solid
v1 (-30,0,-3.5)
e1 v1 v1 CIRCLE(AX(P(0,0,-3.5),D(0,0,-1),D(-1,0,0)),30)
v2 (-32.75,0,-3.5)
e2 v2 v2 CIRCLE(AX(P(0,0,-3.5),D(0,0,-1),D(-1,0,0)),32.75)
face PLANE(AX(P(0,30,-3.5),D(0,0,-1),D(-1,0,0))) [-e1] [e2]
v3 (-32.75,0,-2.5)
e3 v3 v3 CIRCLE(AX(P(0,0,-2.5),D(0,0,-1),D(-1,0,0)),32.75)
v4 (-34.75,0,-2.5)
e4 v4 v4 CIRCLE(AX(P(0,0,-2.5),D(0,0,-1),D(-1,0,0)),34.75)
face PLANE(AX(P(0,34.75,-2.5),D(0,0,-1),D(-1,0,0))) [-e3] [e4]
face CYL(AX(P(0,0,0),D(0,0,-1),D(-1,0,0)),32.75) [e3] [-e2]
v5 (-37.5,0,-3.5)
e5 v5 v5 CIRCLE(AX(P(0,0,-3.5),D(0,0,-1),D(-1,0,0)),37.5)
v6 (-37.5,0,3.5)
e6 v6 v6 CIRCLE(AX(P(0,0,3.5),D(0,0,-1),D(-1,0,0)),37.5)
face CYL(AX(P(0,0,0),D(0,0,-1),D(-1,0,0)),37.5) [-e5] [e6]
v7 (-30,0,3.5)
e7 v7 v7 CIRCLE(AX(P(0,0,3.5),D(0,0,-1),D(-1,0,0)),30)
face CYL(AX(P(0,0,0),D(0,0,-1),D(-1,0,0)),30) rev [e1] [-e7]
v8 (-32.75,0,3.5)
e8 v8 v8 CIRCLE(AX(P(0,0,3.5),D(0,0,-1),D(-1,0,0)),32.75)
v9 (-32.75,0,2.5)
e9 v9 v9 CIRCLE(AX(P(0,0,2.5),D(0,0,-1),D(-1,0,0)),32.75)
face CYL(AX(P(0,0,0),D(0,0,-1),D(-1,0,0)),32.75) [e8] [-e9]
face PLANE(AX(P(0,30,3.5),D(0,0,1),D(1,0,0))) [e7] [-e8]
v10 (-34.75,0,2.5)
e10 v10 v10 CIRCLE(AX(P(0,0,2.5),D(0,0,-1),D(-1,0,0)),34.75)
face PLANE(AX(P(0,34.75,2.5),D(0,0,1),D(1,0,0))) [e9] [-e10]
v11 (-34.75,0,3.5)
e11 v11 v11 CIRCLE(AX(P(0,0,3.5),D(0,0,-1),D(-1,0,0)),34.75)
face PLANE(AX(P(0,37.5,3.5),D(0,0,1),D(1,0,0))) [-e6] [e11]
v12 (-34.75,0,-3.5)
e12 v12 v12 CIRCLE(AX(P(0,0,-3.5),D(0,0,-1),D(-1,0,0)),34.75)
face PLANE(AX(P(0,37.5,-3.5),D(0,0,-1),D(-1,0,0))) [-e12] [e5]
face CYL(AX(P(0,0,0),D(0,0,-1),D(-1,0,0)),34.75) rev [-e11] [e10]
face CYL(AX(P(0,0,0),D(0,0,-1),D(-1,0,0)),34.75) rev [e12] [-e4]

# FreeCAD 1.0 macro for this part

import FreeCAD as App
import Part
import Sketcher

doc = App.newDocument("Part")
body = doc.addObject("PartDesign::Body", "Body")

# Sketch on YZ plane
sketch1 = doc.addObject("Sketcher::SketchObject", "Sketch")
body.addObject(sketch1)
sketch1.AttachmentSupport = (doc.YZ_Plane, [""])
sketch1.MapMode = "FlatFace"
sketch1.addGeometry([
    Part.LineSegment(App.Vector(37.5, -3.5, 0), App.Vector(37.5, 3.5, 0)),  # 0
    Part.LineSegment(App.Vector(37.5, 3.5, 0), App.Vector(34.75, 3.5, 0)),  # 1
    Part.LineSegment(App.Vector(34.75, 3.5, 0), App.Vector(34.75, 2.5, 0)),  # 2
    Part.LineSegment(App.Vector(34.75, 2.5, 0), App.Vector(32.75, 2.5, 0)),  # 3
    Part.LineSegment(App.Vector(32.75, 2.5, 0), App.Vector(32.75, 3.5, 0)),  # 4
    Part.LineSegment(App.Vector(32.75, 3.5, 0), App.Vector(30, 3.5, 0)),  # 5
    Part.LineSegment(App.Vector(30, 3.5, 0), App.Vector(30, -3.5, 0)),  # 6
    Part.LineSegment(App.Vector(30, -3.5, 0), App.Vector(32.75, -3.5, 0)),  # 7
    Part.LineSegment(App.Vector(32.75, -3.5, 0), App.Vector(32.75, -2.5, 0)),  # 8
    Part.LineSegment(App.Vector(32.75, -2.5, 0), App.Vector(34.75, -2.5, 0)),  # 9
    Part.LineSegment(App.Vector(34.75, -2.5, 0), App.Vector(34.75, -3.5, 0)),  # 10
    Part.LineSegment(App.Vector(34.75, -3.5, 0), App.Vector(37.5, -3.5, 0)),  # 11
], False)
sketch1.addConstraint([
    Sketcher.Constraint("Coincident", 0, 2, 1, 1),
    Sketcher.Constraint("Coincident", 1, 2, 2, 1),
    Sketcher.Constraint("Coincident", 2, 2, 3, 1),
    Sketcher.Constraint("Coincident", 3, 2, 4, 1),
    Sketcher.Constraint("Coincident", 4, 2, 5, 1),
    Sketcher.Constraint("Coincident", 5, 2, 6, 1),
    Sketcher.Constraint("Coincident", 6, 2, 7, 1),
    Sketcher.Constraint("Coincident", 7, 2, 8, 1),
    Sketcher.Constraint("Coincident", 8, 2, 9, 1),
    Sketcher.Constraint("Coincident", 9, 2, 10, 1),
    Sketcher.Constraint("Coincident", 10, 2, 11, 1),
    Sketcher.Constraint("Coincident", 11, 2, 0, 1),
    Sketcher.Constraint("Vertical", 0),
    Sketcher.Constraint("Horizontal", 1),
    Sketcher.Constraint("Vertical", 2),
    Sketcher.Constraint("Horizontal", 3),
    Sketcher.Constraint("Vertical", 4),
    Sketcher.Constraint("Horizontal", 5),
    Sketcher.Constraint("Vertical", 6),
    Sketcher.Constraint("Horizontal", 7),
    Sketcher.Constraint("Vertical", 8),
    Sketcher.Constraint("Horizontal", 9),
    Sketcher.Constraint("Vertical", 10),
    Sketcher.Constraint("Horizontal", 11),
    Sketcher.Constraint("Symmetric", 4, 2, 7, 2, -1),
    Sketcher.Constraint("Symmetric", 2, 2, 9, 2, -1),
    Sketcher.Constraint("Horizontal", 1, 2, 4, 2),
    Sketcher.Constraint("Horizontal", 7, 2, 10, 2),
    Sketcher.Constraint("Equal", 1, 5),
    Sketcher.Constraint("DistanceX", 3, 2, 3, 1, 2.0),
    Sketcher.Constraint("DistanceY", 0, 1, 0, 2, 7.0),
    Sketcher.Constraint("DistanceY", 2, 2, 2, 1, 1.0),
    Sketcher.Constraint("DistanceX", -1, 1, 5, 2, 30.0),
    Sketcher.Constraint("DistanceX", 1, 2, 1, 1, 2.75),
])
revolution = doc.addObject("PartDesign::Revolution", "Revolution")
body.addObject(revolution)
revolution.Profile = sketch1
revolution.ReferenceAxis = (sketch1, ["V_Axis"])
revolution.Angle = 360

doc.recompute()
